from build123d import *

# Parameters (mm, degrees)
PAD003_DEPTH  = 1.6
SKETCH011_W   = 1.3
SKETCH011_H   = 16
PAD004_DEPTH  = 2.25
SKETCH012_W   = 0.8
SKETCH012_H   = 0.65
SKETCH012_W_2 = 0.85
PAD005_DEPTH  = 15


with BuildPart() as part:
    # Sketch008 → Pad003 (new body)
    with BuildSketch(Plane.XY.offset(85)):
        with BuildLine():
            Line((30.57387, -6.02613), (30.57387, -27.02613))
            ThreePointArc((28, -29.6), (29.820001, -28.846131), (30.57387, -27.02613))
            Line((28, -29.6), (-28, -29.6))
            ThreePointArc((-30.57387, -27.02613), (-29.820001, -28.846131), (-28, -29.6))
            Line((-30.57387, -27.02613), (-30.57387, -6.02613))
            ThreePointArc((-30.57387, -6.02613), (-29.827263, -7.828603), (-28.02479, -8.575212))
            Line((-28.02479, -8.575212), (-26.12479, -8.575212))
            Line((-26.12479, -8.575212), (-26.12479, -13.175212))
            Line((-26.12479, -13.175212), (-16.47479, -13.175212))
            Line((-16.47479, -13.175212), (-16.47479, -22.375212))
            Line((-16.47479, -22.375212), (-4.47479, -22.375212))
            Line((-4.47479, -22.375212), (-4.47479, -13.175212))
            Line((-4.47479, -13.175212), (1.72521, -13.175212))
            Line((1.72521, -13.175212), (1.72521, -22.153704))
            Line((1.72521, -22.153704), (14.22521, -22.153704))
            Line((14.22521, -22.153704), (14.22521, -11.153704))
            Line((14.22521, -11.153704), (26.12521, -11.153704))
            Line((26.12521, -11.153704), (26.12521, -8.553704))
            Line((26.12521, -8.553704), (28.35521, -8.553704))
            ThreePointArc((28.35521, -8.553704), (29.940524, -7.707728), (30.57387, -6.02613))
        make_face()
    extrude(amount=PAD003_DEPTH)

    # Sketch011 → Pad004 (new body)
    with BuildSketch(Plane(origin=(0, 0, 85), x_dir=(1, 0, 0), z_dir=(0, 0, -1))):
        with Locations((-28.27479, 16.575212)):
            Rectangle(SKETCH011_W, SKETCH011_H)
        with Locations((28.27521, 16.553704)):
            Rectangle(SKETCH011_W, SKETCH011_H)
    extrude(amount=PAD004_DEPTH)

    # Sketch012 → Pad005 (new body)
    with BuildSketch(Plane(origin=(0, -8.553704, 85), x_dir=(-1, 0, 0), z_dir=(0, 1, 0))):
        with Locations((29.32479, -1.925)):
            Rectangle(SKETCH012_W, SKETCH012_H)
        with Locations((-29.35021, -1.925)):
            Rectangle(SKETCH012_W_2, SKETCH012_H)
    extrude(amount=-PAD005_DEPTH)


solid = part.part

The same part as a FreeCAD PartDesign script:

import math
import FreeCAD as App
import Part
import Sketcher
Q = App.Units.Quantity


def add_polygon(sketch, points):
    """Adds a closed chain of lines whose ends are joined by coincident constraints."""
    first, n = sketch.GeometryCount, len(points)
    for a, b in zip(points, points[1:] + points[:1]):
        sketch.addGeometry(Part.LineSegment(App.Vector(*a, 0), App.Vector(*b, 0)), False)
    for i in range(n):
        sketch.addConstraint(Sketcher.Constraint("Coincident", first + i, 2, first + (i + 1) % n, 1))

doc = App.newDocument("Part")
body = doc.addObject("PartDesign::Body", "Body")

sketch1 = body.newObject("Sketcher::SketchObject", "Sketch")
sketch1.AttachmentSupport = (doc.getObject("XY_Plane"), [""])
sketch1.MapMode = "FlatFace"
sketch1.AttachmentOffset = App.Placement(App.Vector(0, 0, 85), App.Rotation())
sketch1.addGeometry([
    Part.LineSegment(App.Vector(30.57387, -27.02613, 0), App.Vector(30.57387, -6.02613, 0)),
    Part.ArcOfCircle(Part.Circle(App.Vector(28.02479, -6.02613, 0), App.Vector(0, 0, 1), 2.54908), math.radians(-82.552185), math.radians(0.000001)),
    Part.LineSegment(App.Vector(28.35521, -8.553704, 0), App.Vector(26.12521, -8.553704, 0)),
    Part.LineSegment(App.Vector(26.12521, -8.553704, 0), App.Vector(26.12521, -11.153704, 0)),
    Part.LineSegment(App.Vector(26.12521, -11.153704, 0), App.Vector(14.22521, -11.153704, 0)),
    Part.LineSegment(App.Vector(14.22521, -11.153704, 0), App.Vector(14.22521, -22.153704, 0)),
    Part.LineSegment(App.Vector(14.22521, -22.153704, 0), App.Vector(1.72521, -22.153704, 0)),
    Part.LineSegment(App.Vector(1.72521, -22.153704, 0), App.Vector(1.72521, -13.175212, 0)),
    Part.LineSegment(App.Vector(1.72521, -13.175212, 0), App.Vector(-4.47479, -13.175212, 0)),
    Part.LineSegment(App.Vector(-4.47479, -13.175212, 0), App.Vector(-4.47479, -22.375212, 0)),
    Part.LineSegment(App.Vector(-4.47479, -22.375212, 0), App.Vector(-16.47479, -22.375212, 0)),
    Part.LineSegment(App.Vector(-16.47479, -22.375212, 0), App.Vector(-16.47479, -13.175212, 0)),
    Part.LineSegment(App.Vector(-16.47479, -13.175212, 0), App.Vector(-26.12479, -13.175212, 0)),
    Part.LineSegment(App.Vector(-26.12479, -13.175212, 0), App.Vector(-26.12479, -8.575212, 0)),
    Part.LineSegment(App.Vector(-26.12479, -8.575212, 0), App.Vector(-28.02479, -8.575212, 0)),
    Part.ArcOfCircle(Part.Circle(App.Vector(-28.024791, -6.026133, 0), App.Vector(0, 0, 1), 2.549079), math.radians(179.999936), math.radians(270.000019)),
    Part.LineSegment(App.Vector(-30.57387, -6.02613, 0), App.Vector(-30.57387, -27.02613, 0)),
    Part.ArcOfCircle(Part.Circle(App.Vector(-28, -27.02613, 0), App.Vector(0, 0, 1), 2.57387), math.radians(179.999995), math.radians(270.000005)),
    Part.LineSegment(App.Vector(-28, -29.6, 0), App.Vector(28, -29.6, 0)),
    Part.ArcOfCircle(Part.Circle(App.Vector(28, -27.02613, 0), App.Vector(0, 0, 1), 2.57387), math.radians(-90.000005), math.radians(0.000005)),
], False)
sketch1.addConstraint([
    Sketcher.Constraint("Tangent", 0, 2, 1, 2),
    Sketcher.Constraint("Coincident", 1, 1, 2, 1),
    Sketcher.Constraint("Coincident", 2, 2, 3, 1),
    Sketcher.Constraint("Coincident", 3, 2, 4, 1),
    Sketcher.Constraint("Coincident", 4, 2, 5, 1),
    Sketcher.Constraint("Coincident", 5, 2, 6, 1),
    Sketcher.Constraint("Coincident", 6, 2, 7, 1),
    Sketcher.Constraint("Coincident", 7, 2, 8, 1),
    Sketcher.Constraint("Coincident", 8, 2, 9, 1),
    Sketcher.Constraint("Coincident", 9, 2, 10, 1),
    Sketcher.Constraint("Coincident", 10, 2, 11, 1),
    Sketcher.Constraint("Coincident", 11, 2, 12, 1),
    Sketcher.Constraint("Coincident", 12, 2, 13, 1),
    Sketcher.Constraint("Coincident", 13, 2, 14, 1),
    Sketcher.Constraint("Tangent", 14, 2, 15, 2),
    Sketcher.Constraint("Tangent", 15, 1, 16, 1),
    Sketcher.Constraint("Tangent", 16, 2, 17, 1),
    Sketcher.Constraint("Tangent", 17, 2, 18, 1),
    Sketcher.Constraint("Tangent", 18, 2, 19, 1),
    Sketcher.Constraint("Tangent", 19, 2, 0, 1),
    Sketcher.Constraint("Vertical", 0),
    Sketcher.Constraint("Horizontal", 2),
    Sketcher.Constraint("Vertical", 3),
    Sketcher.Constraint("Horizontal", 4),
    Sketcher.Constraint("Vertical", 5),
    Sketcher.Constraint("Horizontal", 6),
    Sketcher.Constraint("Vertical", 7),
    Sketcher.Constraint("Horizontal", 8),
    Sketcher.Constraint("Vertical", 9),
    Sketcher.Constraint("Horizontal", 10),
    Sketcher.Constraint("Vertical", 11),
    Sketcher.Constraint("Horizontal", 12),
    Sketcher.Constraint("Vertical", 13),
    Sketcher.Constraint("Horizontal", 14),
    Sketcher.Constraint("Vertical", 16),
    Sketcher.Constraint("Horizontal", 18),
    Sketcher.Constraint("Equal", 1, 15),
    Sketcher.Constraint("Equal", 17, 19),
    Sketcher.Constraint("Symmetric", 1, 3, 15, 3, -2),
    Sketcher.Constraint("Horizontal", 8, 2, 11, 2),
    Sketcher.Constraint("DistanceX", 10, 2, 10, 1, Q("12 mm")),
    Sketcher.Constraint("DistanceX", 18, 1, 18, 2, Q("56 mm")),
    Sketcher.Constraint("DistanceY", 0, 1, 0, 2, Q("21 mm")),
    Sketcher.Constraint("DistanceY", 5, 2, 5, 1, Q("11 mm")),
    Sketcher.Constraint("DistanceX", 4, 2, 4, 1, Q("11.9 mm")),
    Sketcher.Constraint("DistanceX", 6, 2, 6, 1, Q("12.5 mm")),
    Sketcher.Constraint("DistanceX", 8, 2, 8, 1, Q("6.2 mm")),
    Sketcher.Constraint("DistanceX", 14, 2, 14, 1, Q("1.9 mm")),
    Sketcher.Constraint("DistanceY", 3, 2, 3, 1, Q("2.6 mm")),
    Sketcher.Constraint("DistanceY", 9, 2, 9, 1, Q("9.2 mm")),
    Sketcher.Constraint("DistanceY", 13, 1, 13, 2, Q("4.6 mm")),
    Sketcher.Constraint("DistanceX", 2, 2, 2, 1, Q("2.23 mm")),
    Sketcher.Constraint("DistanceX", 12, 2, 12, 1, Q("9.65 mm")),
    Sketcher.Constraint("DistanceY", 17, 2, -1, 1, Q("29.6 mm")),
    Sketcher.Constraint("Radius", 1, Q("2.54908 mm")),
    Sketcher.Constraint("Radius", 17, Q("2.57387 mm")),
])
pad1 = body.newObject("PartDesign::Pad", "Pad")
pad1.Profile = sketch1
pad1.Length = 1.6

sketch2 = body.newObject("Sketcher::SketchObject", "Sketch001")
sketch2.AttachmentSupport = (doc.getObject("XY_Plane"), [""])
sketch2.MapMode = "FlatFace"
sketch2.AttachmentOffset = App.Placement(App.Vector(0, 0, 85), App.Rotation())
add_polygon(sketch2, [(-28.92479, -24.575212), (-28.92479, -8.575212), (-27.62479, -8.575212), (-27.62479, -24.575212)])
add_polygon(sketch2, [(27.62521, -24.553704), (27.62521, -8.553704), (28.92521, -8.553704), (28.92521, -24.553704)])
sketch2.addConstraint([
    Sketcher.Constraint("Vertical", 0),
    Sketcher.Constraint("Horizontal", 1),
    Sketcher.Constraint("Vertical", 2),
    Sketcher.Constraint("Horizontal", 3),
    Sketcher.Constraint("Vertical", 4),
    Sketcher.Constraint("Horizontal", 5),
    Sketcher.Constraint("Vertical", 6),
    Sketcher.Constraint("Horizontal", 7),
    Sketcher.Constraint("Equal", 3, 5),
    Sketcher.Constraint("Equal", 2, 4),
    Sketcher.Constraint("DistanceY", 0, 1, 0, 2, Q("16 mm")),
    Sketcher.Constraint("DistanceX", 1, 1, 1, 2, Q("1.3 mm")),
    Sketcher.Constraint("DistanceX", 1, 2, 4, 2, Q("55.25 mm")),
    Sketcher.Constraint("DistanceX", 0, 2, -1, 1, Q("28.92479 mm")),
    Sketcher.Constraint("DistanceY", 1, 2, 4, 2, Q("0.021508 mm")),
    Sketcher.Constraint("DistanceY", 0, 2, -1, 1, Q("8.575212 mm")),
])
pad2 = body.newObject("PartDesign::Pad", "Pad001")
pad2.Profile = sketch2
pad2.Length = 2.25
pad2.Reversed = True

sketch3 = body.newObject("Sketcher::SketchObject", "Sketch002")
sketch3.AttachmentSupport = (doc.getObject("XZ_Plane"), [""])
sketch3.MapMode = "FlatFace"
sketch3.AttachmentOffset = App.Placement(App.Vector(0, 0, 8.553704), App.Rotation())
add_polygon(sketch3, [(-28.92479, 83.4), (-28.92479, 82.75), (-29.72479, 82.75), (-29.72479, 83.4)])
add_polygon(sketch3, [(29.77521, 83.4), (29.77521, 82.75), (28.92521, 82.75), (28.92521, 83.4)])
sketch3.addConstraint([
    Sketcher.Constraint("Vertical", 0),
    Sketcher.Constraint("Horizontal", 1),
    Sketcher.Constraint("Vertical", 2),
    Sketcher.Constraint("Horizontal", 3),
    Sketcher.Constraint("Vertical", 4),
    Sketcher.Constraint("Horizontal", 5),
    Sketcher.Constraint("Vertical", 6),
    Sketcher.Constraint("Horizontal", 7),
    Sketcher.Constraint("Horizontal", 1, 2, 4, 2),
    Sketcher.Constraint("Horizontal", 3, 2, 6, 2),
    Sketcher.Constraint("DistanceX", 1, 2, 1, 1, Q("0.8 mm")),
    Sketcher.Constraint("DistanceX", 5, 2, 5, 1, Q("0.85 mm")),
    Sketcher.Constraint("DistanceY", 0, 2, 0, 1, Q("0.65 mm")),
    Sketcher.Constraint("DistanceY", -1, 1, 2, 2, Q("83.4 mm")),
    Sketcher.Constraint("DistanceX", 0, 2, 4, 2, Q("58.7 mm")),
    Sketcher.Constraint("DistanceX", 0, 2, -1, 1, Q("28.92479 mm")),
])
pad3 = body.newObject("PartDesign::Pad", "Pad002")
pad3.Profile = sketch3
pad3.Length = 15

doc.recompute()
